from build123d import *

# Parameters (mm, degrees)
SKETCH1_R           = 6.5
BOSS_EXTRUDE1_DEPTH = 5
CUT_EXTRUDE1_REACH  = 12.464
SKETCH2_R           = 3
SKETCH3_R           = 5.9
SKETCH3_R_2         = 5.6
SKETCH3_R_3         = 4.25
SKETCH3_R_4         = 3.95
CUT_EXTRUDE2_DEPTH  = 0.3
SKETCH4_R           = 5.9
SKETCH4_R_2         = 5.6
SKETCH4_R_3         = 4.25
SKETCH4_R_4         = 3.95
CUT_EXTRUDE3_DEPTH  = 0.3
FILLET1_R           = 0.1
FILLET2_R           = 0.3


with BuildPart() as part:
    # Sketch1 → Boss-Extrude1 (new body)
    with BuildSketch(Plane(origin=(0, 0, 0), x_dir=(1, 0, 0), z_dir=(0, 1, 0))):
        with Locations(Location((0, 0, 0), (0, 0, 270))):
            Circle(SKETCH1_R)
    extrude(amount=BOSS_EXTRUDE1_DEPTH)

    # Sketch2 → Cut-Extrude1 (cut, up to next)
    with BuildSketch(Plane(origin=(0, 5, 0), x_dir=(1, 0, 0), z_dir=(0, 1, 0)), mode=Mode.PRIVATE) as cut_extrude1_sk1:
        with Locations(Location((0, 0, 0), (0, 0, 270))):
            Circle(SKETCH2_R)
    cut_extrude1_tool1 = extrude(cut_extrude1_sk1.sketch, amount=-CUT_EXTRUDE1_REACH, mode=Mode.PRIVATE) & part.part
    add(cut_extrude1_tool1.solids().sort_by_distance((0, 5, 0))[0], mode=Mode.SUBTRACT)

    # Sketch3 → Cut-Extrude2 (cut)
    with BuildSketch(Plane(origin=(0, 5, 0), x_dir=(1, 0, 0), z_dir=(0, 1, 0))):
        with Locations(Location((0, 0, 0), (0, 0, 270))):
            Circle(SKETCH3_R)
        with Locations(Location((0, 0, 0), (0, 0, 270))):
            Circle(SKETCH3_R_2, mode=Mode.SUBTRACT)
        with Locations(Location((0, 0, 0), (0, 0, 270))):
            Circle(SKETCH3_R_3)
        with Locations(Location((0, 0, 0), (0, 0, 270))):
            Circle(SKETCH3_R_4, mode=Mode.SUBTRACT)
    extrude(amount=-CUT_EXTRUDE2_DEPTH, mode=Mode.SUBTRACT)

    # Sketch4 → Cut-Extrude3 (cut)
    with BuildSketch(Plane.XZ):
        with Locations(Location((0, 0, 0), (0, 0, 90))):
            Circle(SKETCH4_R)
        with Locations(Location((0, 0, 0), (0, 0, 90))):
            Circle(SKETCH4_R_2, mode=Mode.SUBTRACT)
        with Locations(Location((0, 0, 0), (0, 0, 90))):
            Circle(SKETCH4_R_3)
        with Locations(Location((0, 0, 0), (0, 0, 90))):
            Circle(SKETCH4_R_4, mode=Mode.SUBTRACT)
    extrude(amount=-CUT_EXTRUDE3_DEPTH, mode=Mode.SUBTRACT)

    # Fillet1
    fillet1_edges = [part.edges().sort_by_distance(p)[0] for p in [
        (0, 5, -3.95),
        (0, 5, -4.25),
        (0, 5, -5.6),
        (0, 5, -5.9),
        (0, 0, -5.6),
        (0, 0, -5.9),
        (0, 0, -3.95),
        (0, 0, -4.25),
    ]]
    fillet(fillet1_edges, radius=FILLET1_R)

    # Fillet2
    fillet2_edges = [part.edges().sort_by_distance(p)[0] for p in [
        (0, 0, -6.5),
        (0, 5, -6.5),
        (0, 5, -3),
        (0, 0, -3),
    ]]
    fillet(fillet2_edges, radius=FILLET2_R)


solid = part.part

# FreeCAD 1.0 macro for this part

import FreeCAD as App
import Part
import Sketcher
Q = App.Units.Quantity


def edges_at(feature, points):
    """Names of the edges that pass closest to the given points."""
    edges = feature.Shape.Edges
    near = lambda p: min(range(len(edges)), key=lambda i: edges[i].distToShape(Part.Vertex(*p))[0])
    return sorted({f"Edge{near(p) + 1}" for p in points})

doc = App.newDocument("Part")
params = doc.addObject("Spreadsheet::Sheet", "Params")
for row, (alias, value) in enumerate([
    ("sketch1_diameter", "13 mm"),
    ("pad1_length", "5 mm"),
    ("sketch2_diameter", "6 mm"),
    ("sketch3_diameter", "11.8 mm"),
    ("sketch3_diameter2", "11.2 mm"),
    ("sketch3_diameter3", "8.5 mm"),
    ("sketch3_diameter4", "7.9 mm"),
    ("pocket2_length", "0.3 mm"),
    ("sketch4_diameter", "11.8 mm"),
    ("sketch4_diameter2", "11.2 mm"),
    ("sketch4_diameter3", "8.5 mm"),
    ("sketch4_diameter4", "7.9 mm"),
    ("pocket3_length", "0.3 mm"),
    ("fillet_radius", "0.1 mm"),
    ("fillet2_radius", "0.3 mm"),
], start=1):
    params.set(f"A{row}", alias)
    params.set(f"B{row}", "=" + value)
    params.setAlias(f"B{row}", alias)

body = doc.addObject("PartDesign::Body", "Body")

# Sketch on XZ plane
sketch1 = doc.addObject("Sketcher::SketchObject", "Sketch")
body.addObject(sketch1)
sketch1.AttachmentSupport = (doc.XZ_Plane, [""])
sketch1.MapMode = "FlatFace"
sketch1.addGeometry(Part.Circle(App.Vector(0, 0, 0), App.Vector(0, 0, 1), 6.5), False)
sketch1.addConstraint(Sketcher.Constraint("Coincident", 0, 3, -1, 1))
sketch1.addConstraint(Sketcher.Constraint("Diameter", 0, Q("13 mm")))
sketch1.setExpression("Constraints[1]", "Params.sketch1_diameter")
pad1 = doc.addObject("PartDesign::Pad", "Pad")
body.addObject(pad1)
pad1.Profile = sketch1
pad1.setExpression("Length", "Params.pad1_length")
pad1.Reversed = True

# Sketch on XZ plane
sketch2 = doc.addObject("Sketcher::SketchObject", "Sketch001")
body.addObject(sketch2)
sketch2.AttachmentSupport = (doc.XZ_Plane, [""])
sketch2.MapMode = "FlatFace"
sketch2.AttachmentOffset = App.Placement(App.Vector(0, 0, -5), App.Rotation())
sketch2.addGeometry(Part.Circle(App.Vector(0, 0, 0), App.Vector(0, 0, 1), 3), False)
sketch2.addConstraint(Sketcher.Constraint("Coincident", 0, 3, -1, 1))
sketch2.addConstraint(Sketcher.Constraint("Diameter", 0, Q("6 mm")))
sketch2.setExpression("Constraints[1]", "Params.sketch2_diameter")
pocket1 = doc.addObject("PartDesign::Pocket", "Pocket")
body.addObject(pocket1)
pocket1.Profile = sketch2
pocket1.Type = "UpToFirst"
pocket1.Reversed = True

# Sketch on XZ plane
sketch3 = doc.addObject("Sketcher::SketchObject", "Sketch002")
body.addObject(sketch3)
sketch3.AttachmentSupport = (doc.XZ_Plane, [""])
sketch3.MapMode = "FlatFace"
sketch3.AttachmentOffset = App.Placement(App.Vector(0, 0, -5), App.Rotation())
sketch3.addGeometry(Part.Circle(App.Vector(0, 0, 0), App.Vector(0, 0, 1), 5.9), False)
sketch3.addGeometry(Part.Circle(App.Vector(0, 0, 0), App.Vector(0, 0, 1), 5.6), False)
sketch3.addGeometry(Part.Circle(App.Vector(0, 0, 0), App.Vector(0, 0, 1), 4.25), False)
sketch3.addGeometry(Part.Circle(App.Vector(0, 0, 0), App.Vector(0, 0, 1), 3.95), False)
sketch3.addConstraint(Sketcher.Constraint("Coincident", 0, 3, -1, 1))
sketch3.addConstraint(Sketcher.Constraint("Coincident", 1, 3, -1, 1))
sketch3.addConstraint(Sketcher.Constraint("Coincident", 2, 3, -1, 1))
sketch3.addConstraint(Sketcher.Constraint("Coincident", 3, 3, -1, 1))
sketch3.addConstraint(Sketcher.Constraint("Diameter", 0, Q("11.8 mm")))
sketch3.addConstraint(Sketcher.Constraint("Diameter", 1, Q("11.2 mm")))
sketch3.addConstraint(Sketcher.Constraint("Diameter", 2, Q("8.5 mm")))
sketch3.addConstraint(Sketcher.Constraint("Diameter", 3, Q("7.9 mm")))
sketch3.setExpression("Constraints[4]", "Params.sketch3_diameter")
sketch3.setExpression("Constraints[5]", "Params.sketch3_diameter2")
sketch3.setExpression("Constraints[6]", "Params.sketch3_diameter3")
sketch3.setExpression("Constraints[7]", "Params.sketch3_diameter4")
pocket2 = doc.addObject("PartDesign::Pocket", "Pocket001")
body.addObject(pocket2)
pocket2.Profile = sketch3
pocket2.setExpression("Length", "Params.pocket2_length")
pocket2.Reversed = True

# Sketch on XZ plane
sketch4 = doc.addObject("Sketcher::SketchObject", "Sketch003")
body.addObject(sketch4)
sketch4.AttachmentSupport = (doc.XZ_Plane, [""])
sketch4.MapMode = "FlatFace"
sketch4.addGeometry(Part.Circle(App.Vector(0, 0, 0), App.Vector(0, 0, 1), 5.9), False)
sketch4.addGeometry(Part.Circle(App.Vector(0, 0, 0), App.Vector(0, 0, 1), 5.6), False)
sketch4.addGeometry(Part.Circle(App.Vector(0, 0, 0), App.Vector(0, 0, 1), 4.25), False)
sketch4.addGeometry(Part.Circle(App.Vector(0, 0, 0), App.Vector(0, 0, 1), 3.95), False)
sketch4.addConstraint(Sketcher.Constraint("Coincident", 0, 3, -1, 1))
sketch4.addConstraint(Sketcher.Constraint("Coincident", 1, 3, -1, 1))
sketch4.addConstraint(Sketcher.Constraint("Coincident", 2, 3, -1, 1))
sketch4.addConstraint(Sketcher.Constraint("Coincident", 3, 3, -1, 1))
sketch4.addConstraint(Sketcher.Constraint("Diameter", 0, Q("11.8 mm")))
sketch4.addConstraint(Sketcher.Constraint("Diameter", 1, Q("11.2 mm")))
sketch4.addConstraint(Sketcher.Constraint("Diameter", 2, Q("8.5 mm")))
sketch4.addConstraint(Sketcher.Constraint("Diameter", 3, Q("7.9 mm")))
sketch4.setExpression("Constraints[4]", "Params.sketch4_diameter")
sketch4.setExpression("Constraints[5]", "Params.sketch4_diameter2")
sketch4.setExpression("Constraints[6]", "Params.sketch4_diameter3")
sketch4.setExpression("Constraints[7]", "Params.sketch4_diameter4")
pocket3 = doc.addObject("PartDesign::Pocket", "Pocket002")
body.addObject(pocket3)
pocket3.Profile = sketch4
pocket3.setExpression("Length", "Params.pocket3_length")
doc.recompute()

fillet = doc.addObject("PartDesign::Fillet", "Fillet")
body.addObject(fillet)
fillet.Base = (pocket3, edges_at(pocket3, [
    (0, 5, -3.95),
    (0, 5, -4.25),
    (0, 5, -5.6),
    (0, 5, -5.9),
    (0, 0, -5.6),
    (0, 0, -5.9),
    (0, 0, -3.95),
    (0, 0, -4.25),
]))
fillet.setExpression("Radius", "Params.fillet_radius")
doc.recompute()

fillet2 = doc.addObject("PartDesign::Fillet", "Fillet001")
body.addObject(fillet2)
fillet2.Base = (fillet, edges_at(fillet, [
    (0, 0, -6.5),
    (0, 5, -6.5),
    (0, 5, -3),
    (0, 0, -3),
]))
fillet2.setExpression("Radius", "Params.fillet2_radius")

doc.recompute()
